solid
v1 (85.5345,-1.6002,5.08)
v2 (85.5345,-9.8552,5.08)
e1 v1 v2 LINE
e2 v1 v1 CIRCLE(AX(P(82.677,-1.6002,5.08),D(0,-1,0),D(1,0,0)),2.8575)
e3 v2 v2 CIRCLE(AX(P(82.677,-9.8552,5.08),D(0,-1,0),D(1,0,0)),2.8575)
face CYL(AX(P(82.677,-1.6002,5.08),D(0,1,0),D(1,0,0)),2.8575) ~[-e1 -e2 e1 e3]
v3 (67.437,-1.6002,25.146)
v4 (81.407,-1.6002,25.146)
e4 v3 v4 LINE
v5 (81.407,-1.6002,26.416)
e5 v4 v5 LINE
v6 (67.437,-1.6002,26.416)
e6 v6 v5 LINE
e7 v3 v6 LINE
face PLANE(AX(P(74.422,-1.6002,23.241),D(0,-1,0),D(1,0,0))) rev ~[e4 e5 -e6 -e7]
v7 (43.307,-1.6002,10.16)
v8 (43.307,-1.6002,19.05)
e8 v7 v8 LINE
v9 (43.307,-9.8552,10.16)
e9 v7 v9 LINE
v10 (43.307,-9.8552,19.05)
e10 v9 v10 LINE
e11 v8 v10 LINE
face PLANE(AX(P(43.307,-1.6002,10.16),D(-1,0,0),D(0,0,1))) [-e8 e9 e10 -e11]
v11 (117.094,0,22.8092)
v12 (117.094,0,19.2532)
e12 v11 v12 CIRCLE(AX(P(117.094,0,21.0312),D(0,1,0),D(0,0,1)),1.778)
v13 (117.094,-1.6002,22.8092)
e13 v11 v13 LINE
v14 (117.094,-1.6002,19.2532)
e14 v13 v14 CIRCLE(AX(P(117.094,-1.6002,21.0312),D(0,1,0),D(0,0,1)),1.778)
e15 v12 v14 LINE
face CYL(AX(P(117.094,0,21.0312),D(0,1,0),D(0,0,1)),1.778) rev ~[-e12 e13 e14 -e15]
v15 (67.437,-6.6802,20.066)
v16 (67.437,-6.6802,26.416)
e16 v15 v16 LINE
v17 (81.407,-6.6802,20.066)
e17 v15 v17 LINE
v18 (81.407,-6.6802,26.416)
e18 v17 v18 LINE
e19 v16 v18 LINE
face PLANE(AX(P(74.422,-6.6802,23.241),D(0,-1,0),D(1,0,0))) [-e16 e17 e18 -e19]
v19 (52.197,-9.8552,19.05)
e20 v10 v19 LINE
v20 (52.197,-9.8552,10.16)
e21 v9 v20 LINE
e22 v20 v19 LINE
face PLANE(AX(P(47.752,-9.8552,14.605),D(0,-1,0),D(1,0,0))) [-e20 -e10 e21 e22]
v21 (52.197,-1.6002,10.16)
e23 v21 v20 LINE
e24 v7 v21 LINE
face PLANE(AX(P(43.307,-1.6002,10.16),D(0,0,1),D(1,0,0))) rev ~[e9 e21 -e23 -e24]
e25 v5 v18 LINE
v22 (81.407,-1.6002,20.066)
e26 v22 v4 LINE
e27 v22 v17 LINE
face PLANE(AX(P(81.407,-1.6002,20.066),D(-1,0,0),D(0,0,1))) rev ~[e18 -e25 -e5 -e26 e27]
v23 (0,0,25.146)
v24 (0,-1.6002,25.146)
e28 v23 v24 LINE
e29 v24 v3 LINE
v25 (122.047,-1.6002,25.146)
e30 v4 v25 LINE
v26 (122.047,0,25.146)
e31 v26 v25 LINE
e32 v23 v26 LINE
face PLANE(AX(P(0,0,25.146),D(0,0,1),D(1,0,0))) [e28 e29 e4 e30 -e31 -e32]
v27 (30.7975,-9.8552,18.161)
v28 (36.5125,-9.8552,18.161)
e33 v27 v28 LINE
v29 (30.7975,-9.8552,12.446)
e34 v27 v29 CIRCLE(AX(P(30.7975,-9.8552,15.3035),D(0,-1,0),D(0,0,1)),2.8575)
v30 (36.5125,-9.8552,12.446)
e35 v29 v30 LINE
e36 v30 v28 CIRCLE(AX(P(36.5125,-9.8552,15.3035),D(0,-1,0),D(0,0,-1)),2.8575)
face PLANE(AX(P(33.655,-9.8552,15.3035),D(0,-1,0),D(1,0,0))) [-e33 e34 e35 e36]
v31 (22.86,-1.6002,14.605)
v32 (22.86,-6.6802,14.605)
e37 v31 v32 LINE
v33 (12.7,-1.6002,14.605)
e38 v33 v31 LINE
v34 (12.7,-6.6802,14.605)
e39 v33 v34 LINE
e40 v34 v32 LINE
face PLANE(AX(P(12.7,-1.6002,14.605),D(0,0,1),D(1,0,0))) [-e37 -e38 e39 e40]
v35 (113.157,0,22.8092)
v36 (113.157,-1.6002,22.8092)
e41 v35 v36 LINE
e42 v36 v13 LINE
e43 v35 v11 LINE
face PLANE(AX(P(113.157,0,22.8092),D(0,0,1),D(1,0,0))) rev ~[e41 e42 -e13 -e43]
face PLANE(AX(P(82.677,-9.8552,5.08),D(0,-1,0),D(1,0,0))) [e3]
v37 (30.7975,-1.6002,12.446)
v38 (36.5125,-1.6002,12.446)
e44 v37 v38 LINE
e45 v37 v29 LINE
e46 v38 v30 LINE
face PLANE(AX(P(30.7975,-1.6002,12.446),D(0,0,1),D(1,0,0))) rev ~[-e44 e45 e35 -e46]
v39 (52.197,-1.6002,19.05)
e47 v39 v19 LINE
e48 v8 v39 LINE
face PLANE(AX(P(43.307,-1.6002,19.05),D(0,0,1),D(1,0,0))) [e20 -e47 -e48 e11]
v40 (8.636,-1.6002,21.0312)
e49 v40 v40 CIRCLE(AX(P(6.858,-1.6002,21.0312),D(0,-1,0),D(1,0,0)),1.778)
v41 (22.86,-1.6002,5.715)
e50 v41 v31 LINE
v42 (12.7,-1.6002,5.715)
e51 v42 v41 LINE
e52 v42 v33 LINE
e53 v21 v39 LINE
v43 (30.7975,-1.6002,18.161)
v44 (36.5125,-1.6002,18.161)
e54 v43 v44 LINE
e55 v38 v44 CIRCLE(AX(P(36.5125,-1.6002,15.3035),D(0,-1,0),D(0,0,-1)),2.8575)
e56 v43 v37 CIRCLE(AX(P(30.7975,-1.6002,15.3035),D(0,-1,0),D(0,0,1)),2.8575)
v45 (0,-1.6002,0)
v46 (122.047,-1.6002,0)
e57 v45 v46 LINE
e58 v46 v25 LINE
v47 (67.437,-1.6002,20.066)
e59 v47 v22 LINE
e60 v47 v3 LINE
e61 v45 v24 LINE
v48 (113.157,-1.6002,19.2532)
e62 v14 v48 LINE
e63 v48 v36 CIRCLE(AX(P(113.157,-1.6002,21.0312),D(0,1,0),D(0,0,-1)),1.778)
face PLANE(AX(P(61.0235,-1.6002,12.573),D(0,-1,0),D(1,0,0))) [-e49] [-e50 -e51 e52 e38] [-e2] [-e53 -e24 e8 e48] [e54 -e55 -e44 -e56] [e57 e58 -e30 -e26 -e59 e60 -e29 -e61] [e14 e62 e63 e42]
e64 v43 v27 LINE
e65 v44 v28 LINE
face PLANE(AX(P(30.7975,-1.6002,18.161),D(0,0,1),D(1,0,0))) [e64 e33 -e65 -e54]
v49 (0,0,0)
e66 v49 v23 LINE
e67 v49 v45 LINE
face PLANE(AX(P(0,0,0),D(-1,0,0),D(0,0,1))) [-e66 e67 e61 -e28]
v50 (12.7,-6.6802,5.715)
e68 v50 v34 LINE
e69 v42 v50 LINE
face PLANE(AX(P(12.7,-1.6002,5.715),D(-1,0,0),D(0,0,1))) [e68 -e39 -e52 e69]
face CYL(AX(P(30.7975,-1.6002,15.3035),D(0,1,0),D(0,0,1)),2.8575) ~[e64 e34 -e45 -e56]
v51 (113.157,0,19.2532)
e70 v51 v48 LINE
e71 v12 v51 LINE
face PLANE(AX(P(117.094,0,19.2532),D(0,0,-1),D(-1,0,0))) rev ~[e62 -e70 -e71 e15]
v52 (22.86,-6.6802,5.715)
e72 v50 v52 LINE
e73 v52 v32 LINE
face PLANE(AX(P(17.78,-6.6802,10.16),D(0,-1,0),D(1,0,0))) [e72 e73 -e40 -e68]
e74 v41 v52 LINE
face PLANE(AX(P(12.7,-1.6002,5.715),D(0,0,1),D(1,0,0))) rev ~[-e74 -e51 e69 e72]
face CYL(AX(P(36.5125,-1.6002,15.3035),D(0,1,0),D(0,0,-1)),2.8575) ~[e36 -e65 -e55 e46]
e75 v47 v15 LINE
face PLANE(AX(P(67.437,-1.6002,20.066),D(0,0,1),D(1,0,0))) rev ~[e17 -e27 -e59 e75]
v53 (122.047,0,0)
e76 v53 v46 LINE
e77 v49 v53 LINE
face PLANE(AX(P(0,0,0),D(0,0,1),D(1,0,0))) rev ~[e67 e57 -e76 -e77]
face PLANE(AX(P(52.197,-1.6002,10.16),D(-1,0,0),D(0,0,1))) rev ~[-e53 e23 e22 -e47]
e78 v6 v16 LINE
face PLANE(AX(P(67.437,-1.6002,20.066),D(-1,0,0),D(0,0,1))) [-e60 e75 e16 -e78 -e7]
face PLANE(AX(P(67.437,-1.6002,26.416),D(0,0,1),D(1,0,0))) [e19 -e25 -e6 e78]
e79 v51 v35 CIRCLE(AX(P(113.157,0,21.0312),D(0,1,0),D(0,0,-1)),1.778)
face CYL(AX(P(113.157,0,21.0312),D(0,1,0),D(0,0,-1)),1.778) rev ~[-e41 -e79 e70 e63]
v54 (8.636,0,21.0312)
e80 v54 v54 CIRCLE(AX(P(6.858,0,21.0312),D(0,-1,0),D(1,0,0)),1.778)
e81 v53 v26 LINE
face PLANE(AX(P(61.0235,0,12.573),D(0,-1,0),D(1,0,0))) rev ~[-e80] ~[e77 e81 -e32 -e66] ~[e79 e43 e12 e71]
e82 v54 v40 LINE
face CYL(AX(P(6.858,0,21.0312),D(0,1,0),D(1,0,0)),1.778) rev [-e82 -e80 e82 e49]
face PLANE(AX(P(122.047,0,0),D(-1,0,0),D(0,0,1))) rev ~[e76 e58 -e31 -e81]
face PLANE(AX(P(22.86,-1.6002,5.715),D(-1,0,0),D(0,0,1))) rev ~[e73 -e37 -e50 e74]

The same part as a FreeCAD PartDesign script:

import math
import FreeCAD as App
import Part
import Sketcher
Q = App.Units.Quantity


def add_polygon(sketch, points):
    """Adds a closed chain of lines whose ends are joined by coincident constraints."""
    first, n = sketch.GeometryCount, len(points)
    for a, b in zip(points, points[1:] + points[:1]):
        sketch.addGeometry(Part.LineSegment(App.Vector(*a, 0), App.Vector(*b, 0)), False)
    for i in range(n):
        sketch.addConstraint(Sketcher.Constraint("Coincident", first + i, 2, first + (i + 1) % n, 1))

doc = App.newDocument("Part")
body = doc.addObject("PartDesign::Body", "Body")

sketch1 = body.newObject("Sketcher::SketchObject", "Sketch")
sketch1.AttachmentSupport = (doc.getObject("XZ_Plane"), [""])
sketch1.MapMode = "FlatFace"
add_polygon(sketch1, [(0, 25.1), (0, 0), (122, 0), (122, 25.1)])
sketch1.addGeometry(Part.Circle(App.Vector(6.9, 21, 0), App.Vector(0, 0, 1), 1.8), False)
sketch1.addGeometry(Part.LineSegment(App.Vector(117.1, 19.3, 0), App.Vector(113.2, 19.3, 0)), False)
sketch1.addGeometry(Part.ArcOfCircle(Part.Circle(App.Vector(113.2, 21, 0), App.Vector(0, 0, 1), 1.8), math.radians(90), math.radians(270)), False)
sketch1.addGeometry(Part.LineSegment(App.Vector(113.2, 22.8, 0), App.Vector(117.1, 22.8, 0)), False)
sketch1.addGeometry(Part.ArcOfCircle(Part.Circle(App.Vector(117.1, 21, 0), App.Vector(0, 0, 1), 1.8), math.radians(-90), math.radians(90)), False)
sketch1.addConstraint(Sketcher.Constraint("Tangent", 5, 2, 6, 2))
sketch1.addConstraint(Sketcher.Constraint("Tangent", 6, 1, 7, 1))
sketch1.addConstraint(Sketcher.Constraint("Tangent", 7, 2, 8, 2))
sketch1.addConstraint(Sketcher.Constraint("Tangent", 8, 1, 5, 1))
sketch1.addConstraint(Sketcher.Constraint("Vertical", 0))
sketch1.addConstraint(Sketcher.Constraint("Horizontal", 1))
sketch1.addConstraint(Sketcher.Constraint("Vertical", 2))
sketch1.addConstraint(Sketcher.Constraint("Horizontal", 3))
sketch1.addConstraint(Sketcher.Constraint("Horizontal", 5))
sketch1.addConstraint(Sketcher.Constraint("Horizontal", 7))
sketch1.addConstraint(Sketcher.Constraint("Coincident", 0, 2, -1, 1))
sketch1.addConstraint(Sketcher.Constraint("Equal", 4, 6))
sketch1.addConstraint(Sketcher.Constraint("Horizontal", 4, 3, 6, 3))
sketch1.addConstraint(Sketcher.Constraint("Diameter", 4, Q("0.14 in")))
sketch1.addConstraint(Sketcher.Constraint("DistanceY", 0, 2, 0, 1, Q("0.99 in")))
sketch1.addConstraint(Sketcher.Constraint("DistanceX", 1, 1, 1, 2, Q("4.805 in")))
sketch1.addConstraint(Sketcher.Constraint("DistanceX", 5, 2, 5, 1, Q("0.155 in")))
sketch1.addConstraint(Sketcher.Constraint("DistanceX", -1, 1, 4, 3, Q("0.27 in")))
sketch1.addConstraint(Sketcher.Constraint("DistanceX", -1, 1, 8, 3, Q("4.61 in")))
sketch1.addConstraint(Sketcher.Constraint("DistanceY", -1, 1, 4, 3, Q("0.828 in")))
pad1 = body.newObject("PartDesign::Pad", "Pad")
pad1.Profile = sketch1
pad1.Length = Q("0.063 in")

sketch2 = body.newObject("Sketcher::SketchObject", "Sketch001")
sketch2.AttachmentSupport = (doc.getObject("XZ_Plane"), [""])
sketch2.MapMode = "FlatFace"
sketch2.AttachmentOffset = App.Placement(App.Vector(0, 0, 0.063 * 25.4), App.Rotation())
add_polygon(sketch2, [(13, 15), (13, 6), (23, 6), (23, 15)])
add_polygon(sketch2, [(67, 26), (67, 20), (81, 20), (81, 26)])
sketch2.addConstraint(Sketcher.Constraint("Vertical", 0))
sketch2.addConstraint(Sketcher.Constraint("Horizontal", 1))
sketch2.addConstraint(Sketcher.Constraint("Vertical", 2))
sketch2.addConstraint(Sketcher.Constraint("Horizontal", 3))
sketch2.addConstraint(Sketcher.Constraint("Vertical", 4))
sketch2.addConstraint(Sketcher.Constraint("Horizontal", 5))
sketch2.addConstraint(Sketcher.Constraint("Vertical", 6))
sketch2.addConstraint(Sketcher.Constraint("Horizontal", 7))
sketch2.addConstraint(Sketcher.Constraint("DistanceX", 1, 1, 1, 2, Q("0.4 in")))
sketch2.addConstraint(Sketcher.Constraint("DistanceX", 5, 1, 5, 2, Q("0.55 in")))
sketch2.addConstraint(Sketcher.Constraint("DistanceY", 0, 2, 0, 1, Q("0.35 in")))
sketch2.addConstraint(Sketcher.Constraint("DistanceY", 4, 2, 4, 1, Q("0.25 in")))
sketch2.addConstraint(Sketcher.Constraint("DistanceX", -1, 1, 0, 2, Q("0.5 in")))
sketch2.addConstraint(Sketcher.Constraint("DistanceY", -1, 1, 4, 2, Q("0.79 in")))
sketch2.addConstraint(Sketcher.Constraint("DistanceY", -1, 1, 0, 2, Q("0.225 in")))
sketch2.addConstraint(Sketcher.Constraint("DistanceX", -1, 1, 4, 2, Q("2.655 in")))
pad2 = body.newObject("PartDesign::Pad", "Pad001")
pad2.Profile = sketch2
pad2.Length = Q("0.2 in")

sketch3 = body.newObject("Sketcher::SketchObject", "Sketch002")
sketch3.AttachmentSupport = (doc.getObject("XZ_Plane"), [""])
sketch3.MapMode = "FlatFace"
sketch3.AttachmentOffset = App.Placement(App.Vector(0, 0, 0.063 * 25.4), App.Rotation())
add_polygon(sketch3, [(43.3, 19.1), (43.3, 10.2), (52.2, 10.2), (52.2, 19.1)])
sketch3.addGeometry(Part.Circle(App.Vector(82.7, 5.1, 0), App.Vector(0, 0, 1), 2.9), False)
sketch3.addGeometry(Part.LineSegment(App.Vector(30.8, 12.4, 0), App.Vector(36.5, 12.4, 0)), False)
sketch3.addGeometry(Part.ArcOfCircle(Part.Circle(App.Vector(36.5, 15.3, 0), App.Vector(0, 0, 1), 2.9), math.radians(-90), math.radians(90)), False)
sketch3.addGeometry(Part.LineSegment(App.Vector(36.5, 18.2, 0), App.Vector(30.8, 18.2, 0)), False)
sketch3.addGeometry(Part.ArcOfCircle(Part.Circle(App.Vector(30.8, 15.3, 0), App.Vector(0, 0, 1), 2.9), math.radians(90), math.radians(270)), False)
sketch3.addConstraint(Sketcher.Constraint("Tangent", 5, 2, 6, 1))
sketch3.addConstraint(Sketcher.Constraint("Tangent", 6, 2, 7, 1))
sketch3.addConstraint(Sketcher.Constraint("Tangent", 7, 2, 8, 1))
sketch3.addConstraint(Sketcher.Constraint("Tangent", 8, 2, 5, 1))
sketch3.addConstraint(Sketcher.Constraint("Vertical", 0))
sketch3.addConstraint(Sketcher.Constraint("Horizontal", 1))
sketch3.addConstraint(Sketcher.Constraint("Vertical", 2))
sketch3.addConstraint(Sketcher.Constraint("Horizontal", 3))
sketch3.addConstraint(Sketcher.Constraint("Horizontal", 5))
sketch3.addConstraint(Sketcher.Constraint("Horizontal", 7))
sketch3.addConstraint(Sketcher.Constraint("Equal", 4, 6))
sketch3.addConstraint(Sketcher.Constraint("Equal", 3, 0))
sketch3.addConstraint(Sketcher.Constraint("Diameter", 4, Q("0.225 in")))
sketch3.addConstraint(Sketcher.Constraint("DistanceX", 1, 1, 1, 2, Q("0.35 in")))
sketch3.addConstraint(Sketcher.Constraint("DistanceY", -1, 1, 4, 3, Q("0.2 in")))
sketch3.addConstraint(Sketcher.Constraint("DistanceY", -1, 1, 0, 2, Q("0.4 in")))
sketch3.addConstraint(Sketcher.Constraint("DistanceX", 1, 2, 4, 3, Q("1.2 in")))
sketch3.addConstraint(Sketcher.Constraint("DistanceX", 5, 1, 5, 2, Q("0.225 in")))
sketch3.addConstraint(Sketcher.Constraint("DistanceY", -1, 1, 5, 2, Q("0.49 in")))
sketch3.addConstraint(Sketcher.Constraint("DistanceX", -1, 1, 4, 3, Q("3.255 in")))
sketch3.addConstraint(Sketcher.Constraint("DistanceX", -1, 1, 6, 3, Q("1.4375 in")))
pad3 = body.newObject("PartDesign::Pad", "Pad002")
pad3.Profile = sketch3
pad3.Length = Q("0.325 in")

doc.recompute()
